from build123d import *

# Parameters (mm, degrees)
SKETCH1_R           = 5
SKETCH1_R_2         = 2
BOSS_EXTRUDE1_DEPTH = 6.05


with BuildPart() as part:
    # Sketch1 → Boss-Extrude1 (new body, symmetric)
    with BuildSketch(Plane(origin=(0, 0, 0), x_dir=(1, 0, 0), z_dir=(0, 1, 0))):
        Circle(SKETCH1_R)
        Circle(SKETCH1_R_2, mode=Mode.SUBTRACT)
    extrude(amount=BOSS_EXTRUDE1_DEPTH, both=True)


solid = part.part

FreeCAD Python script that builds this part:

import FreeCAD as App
import Part
import Sketcher
from FreeCAD import Vector

doc = App.newDocument("Part")
body = doc.addObject("PartDesign::Body", "Body")

# Sketch on XZ plane
sketch1 = body.newObject("Sketcher::SketchObject", "Sketch")
sketch1.AttachmentSupport = (doc.getObject("XZ_Plane"), [""])
sketch1.MapMode = "FlatFace"
sketch1.addGeometry(Part.Circle(Vector(0, 0, 0), Vector(0, 0, 1), 5), False)
sketch1.addGeometry(Part.Circle(Vector(0, 0, 0), Vector(0, 0, 1), 2), False)
sketch1.addConstraint(Sketcher.Constraint("Coincident", 0, 3, -1, 1))
sketch1.addConstraint(Sketcher.Constraint("Coincident", 1, 3, -1, 1))
sketch1.addConstraint(Sketcher.Constraint("Diameter", 0, 10.0))
sketch1.addConstraint(Sketcher.Constraint("Diameter", 1, 4.0))
pad1 = body.newObject("PartDesign::Pad", "Pad")
pad1.Profile = sketch1
pad1.Length = 12.1
pad1.Midplane = True

doc.recompute()
